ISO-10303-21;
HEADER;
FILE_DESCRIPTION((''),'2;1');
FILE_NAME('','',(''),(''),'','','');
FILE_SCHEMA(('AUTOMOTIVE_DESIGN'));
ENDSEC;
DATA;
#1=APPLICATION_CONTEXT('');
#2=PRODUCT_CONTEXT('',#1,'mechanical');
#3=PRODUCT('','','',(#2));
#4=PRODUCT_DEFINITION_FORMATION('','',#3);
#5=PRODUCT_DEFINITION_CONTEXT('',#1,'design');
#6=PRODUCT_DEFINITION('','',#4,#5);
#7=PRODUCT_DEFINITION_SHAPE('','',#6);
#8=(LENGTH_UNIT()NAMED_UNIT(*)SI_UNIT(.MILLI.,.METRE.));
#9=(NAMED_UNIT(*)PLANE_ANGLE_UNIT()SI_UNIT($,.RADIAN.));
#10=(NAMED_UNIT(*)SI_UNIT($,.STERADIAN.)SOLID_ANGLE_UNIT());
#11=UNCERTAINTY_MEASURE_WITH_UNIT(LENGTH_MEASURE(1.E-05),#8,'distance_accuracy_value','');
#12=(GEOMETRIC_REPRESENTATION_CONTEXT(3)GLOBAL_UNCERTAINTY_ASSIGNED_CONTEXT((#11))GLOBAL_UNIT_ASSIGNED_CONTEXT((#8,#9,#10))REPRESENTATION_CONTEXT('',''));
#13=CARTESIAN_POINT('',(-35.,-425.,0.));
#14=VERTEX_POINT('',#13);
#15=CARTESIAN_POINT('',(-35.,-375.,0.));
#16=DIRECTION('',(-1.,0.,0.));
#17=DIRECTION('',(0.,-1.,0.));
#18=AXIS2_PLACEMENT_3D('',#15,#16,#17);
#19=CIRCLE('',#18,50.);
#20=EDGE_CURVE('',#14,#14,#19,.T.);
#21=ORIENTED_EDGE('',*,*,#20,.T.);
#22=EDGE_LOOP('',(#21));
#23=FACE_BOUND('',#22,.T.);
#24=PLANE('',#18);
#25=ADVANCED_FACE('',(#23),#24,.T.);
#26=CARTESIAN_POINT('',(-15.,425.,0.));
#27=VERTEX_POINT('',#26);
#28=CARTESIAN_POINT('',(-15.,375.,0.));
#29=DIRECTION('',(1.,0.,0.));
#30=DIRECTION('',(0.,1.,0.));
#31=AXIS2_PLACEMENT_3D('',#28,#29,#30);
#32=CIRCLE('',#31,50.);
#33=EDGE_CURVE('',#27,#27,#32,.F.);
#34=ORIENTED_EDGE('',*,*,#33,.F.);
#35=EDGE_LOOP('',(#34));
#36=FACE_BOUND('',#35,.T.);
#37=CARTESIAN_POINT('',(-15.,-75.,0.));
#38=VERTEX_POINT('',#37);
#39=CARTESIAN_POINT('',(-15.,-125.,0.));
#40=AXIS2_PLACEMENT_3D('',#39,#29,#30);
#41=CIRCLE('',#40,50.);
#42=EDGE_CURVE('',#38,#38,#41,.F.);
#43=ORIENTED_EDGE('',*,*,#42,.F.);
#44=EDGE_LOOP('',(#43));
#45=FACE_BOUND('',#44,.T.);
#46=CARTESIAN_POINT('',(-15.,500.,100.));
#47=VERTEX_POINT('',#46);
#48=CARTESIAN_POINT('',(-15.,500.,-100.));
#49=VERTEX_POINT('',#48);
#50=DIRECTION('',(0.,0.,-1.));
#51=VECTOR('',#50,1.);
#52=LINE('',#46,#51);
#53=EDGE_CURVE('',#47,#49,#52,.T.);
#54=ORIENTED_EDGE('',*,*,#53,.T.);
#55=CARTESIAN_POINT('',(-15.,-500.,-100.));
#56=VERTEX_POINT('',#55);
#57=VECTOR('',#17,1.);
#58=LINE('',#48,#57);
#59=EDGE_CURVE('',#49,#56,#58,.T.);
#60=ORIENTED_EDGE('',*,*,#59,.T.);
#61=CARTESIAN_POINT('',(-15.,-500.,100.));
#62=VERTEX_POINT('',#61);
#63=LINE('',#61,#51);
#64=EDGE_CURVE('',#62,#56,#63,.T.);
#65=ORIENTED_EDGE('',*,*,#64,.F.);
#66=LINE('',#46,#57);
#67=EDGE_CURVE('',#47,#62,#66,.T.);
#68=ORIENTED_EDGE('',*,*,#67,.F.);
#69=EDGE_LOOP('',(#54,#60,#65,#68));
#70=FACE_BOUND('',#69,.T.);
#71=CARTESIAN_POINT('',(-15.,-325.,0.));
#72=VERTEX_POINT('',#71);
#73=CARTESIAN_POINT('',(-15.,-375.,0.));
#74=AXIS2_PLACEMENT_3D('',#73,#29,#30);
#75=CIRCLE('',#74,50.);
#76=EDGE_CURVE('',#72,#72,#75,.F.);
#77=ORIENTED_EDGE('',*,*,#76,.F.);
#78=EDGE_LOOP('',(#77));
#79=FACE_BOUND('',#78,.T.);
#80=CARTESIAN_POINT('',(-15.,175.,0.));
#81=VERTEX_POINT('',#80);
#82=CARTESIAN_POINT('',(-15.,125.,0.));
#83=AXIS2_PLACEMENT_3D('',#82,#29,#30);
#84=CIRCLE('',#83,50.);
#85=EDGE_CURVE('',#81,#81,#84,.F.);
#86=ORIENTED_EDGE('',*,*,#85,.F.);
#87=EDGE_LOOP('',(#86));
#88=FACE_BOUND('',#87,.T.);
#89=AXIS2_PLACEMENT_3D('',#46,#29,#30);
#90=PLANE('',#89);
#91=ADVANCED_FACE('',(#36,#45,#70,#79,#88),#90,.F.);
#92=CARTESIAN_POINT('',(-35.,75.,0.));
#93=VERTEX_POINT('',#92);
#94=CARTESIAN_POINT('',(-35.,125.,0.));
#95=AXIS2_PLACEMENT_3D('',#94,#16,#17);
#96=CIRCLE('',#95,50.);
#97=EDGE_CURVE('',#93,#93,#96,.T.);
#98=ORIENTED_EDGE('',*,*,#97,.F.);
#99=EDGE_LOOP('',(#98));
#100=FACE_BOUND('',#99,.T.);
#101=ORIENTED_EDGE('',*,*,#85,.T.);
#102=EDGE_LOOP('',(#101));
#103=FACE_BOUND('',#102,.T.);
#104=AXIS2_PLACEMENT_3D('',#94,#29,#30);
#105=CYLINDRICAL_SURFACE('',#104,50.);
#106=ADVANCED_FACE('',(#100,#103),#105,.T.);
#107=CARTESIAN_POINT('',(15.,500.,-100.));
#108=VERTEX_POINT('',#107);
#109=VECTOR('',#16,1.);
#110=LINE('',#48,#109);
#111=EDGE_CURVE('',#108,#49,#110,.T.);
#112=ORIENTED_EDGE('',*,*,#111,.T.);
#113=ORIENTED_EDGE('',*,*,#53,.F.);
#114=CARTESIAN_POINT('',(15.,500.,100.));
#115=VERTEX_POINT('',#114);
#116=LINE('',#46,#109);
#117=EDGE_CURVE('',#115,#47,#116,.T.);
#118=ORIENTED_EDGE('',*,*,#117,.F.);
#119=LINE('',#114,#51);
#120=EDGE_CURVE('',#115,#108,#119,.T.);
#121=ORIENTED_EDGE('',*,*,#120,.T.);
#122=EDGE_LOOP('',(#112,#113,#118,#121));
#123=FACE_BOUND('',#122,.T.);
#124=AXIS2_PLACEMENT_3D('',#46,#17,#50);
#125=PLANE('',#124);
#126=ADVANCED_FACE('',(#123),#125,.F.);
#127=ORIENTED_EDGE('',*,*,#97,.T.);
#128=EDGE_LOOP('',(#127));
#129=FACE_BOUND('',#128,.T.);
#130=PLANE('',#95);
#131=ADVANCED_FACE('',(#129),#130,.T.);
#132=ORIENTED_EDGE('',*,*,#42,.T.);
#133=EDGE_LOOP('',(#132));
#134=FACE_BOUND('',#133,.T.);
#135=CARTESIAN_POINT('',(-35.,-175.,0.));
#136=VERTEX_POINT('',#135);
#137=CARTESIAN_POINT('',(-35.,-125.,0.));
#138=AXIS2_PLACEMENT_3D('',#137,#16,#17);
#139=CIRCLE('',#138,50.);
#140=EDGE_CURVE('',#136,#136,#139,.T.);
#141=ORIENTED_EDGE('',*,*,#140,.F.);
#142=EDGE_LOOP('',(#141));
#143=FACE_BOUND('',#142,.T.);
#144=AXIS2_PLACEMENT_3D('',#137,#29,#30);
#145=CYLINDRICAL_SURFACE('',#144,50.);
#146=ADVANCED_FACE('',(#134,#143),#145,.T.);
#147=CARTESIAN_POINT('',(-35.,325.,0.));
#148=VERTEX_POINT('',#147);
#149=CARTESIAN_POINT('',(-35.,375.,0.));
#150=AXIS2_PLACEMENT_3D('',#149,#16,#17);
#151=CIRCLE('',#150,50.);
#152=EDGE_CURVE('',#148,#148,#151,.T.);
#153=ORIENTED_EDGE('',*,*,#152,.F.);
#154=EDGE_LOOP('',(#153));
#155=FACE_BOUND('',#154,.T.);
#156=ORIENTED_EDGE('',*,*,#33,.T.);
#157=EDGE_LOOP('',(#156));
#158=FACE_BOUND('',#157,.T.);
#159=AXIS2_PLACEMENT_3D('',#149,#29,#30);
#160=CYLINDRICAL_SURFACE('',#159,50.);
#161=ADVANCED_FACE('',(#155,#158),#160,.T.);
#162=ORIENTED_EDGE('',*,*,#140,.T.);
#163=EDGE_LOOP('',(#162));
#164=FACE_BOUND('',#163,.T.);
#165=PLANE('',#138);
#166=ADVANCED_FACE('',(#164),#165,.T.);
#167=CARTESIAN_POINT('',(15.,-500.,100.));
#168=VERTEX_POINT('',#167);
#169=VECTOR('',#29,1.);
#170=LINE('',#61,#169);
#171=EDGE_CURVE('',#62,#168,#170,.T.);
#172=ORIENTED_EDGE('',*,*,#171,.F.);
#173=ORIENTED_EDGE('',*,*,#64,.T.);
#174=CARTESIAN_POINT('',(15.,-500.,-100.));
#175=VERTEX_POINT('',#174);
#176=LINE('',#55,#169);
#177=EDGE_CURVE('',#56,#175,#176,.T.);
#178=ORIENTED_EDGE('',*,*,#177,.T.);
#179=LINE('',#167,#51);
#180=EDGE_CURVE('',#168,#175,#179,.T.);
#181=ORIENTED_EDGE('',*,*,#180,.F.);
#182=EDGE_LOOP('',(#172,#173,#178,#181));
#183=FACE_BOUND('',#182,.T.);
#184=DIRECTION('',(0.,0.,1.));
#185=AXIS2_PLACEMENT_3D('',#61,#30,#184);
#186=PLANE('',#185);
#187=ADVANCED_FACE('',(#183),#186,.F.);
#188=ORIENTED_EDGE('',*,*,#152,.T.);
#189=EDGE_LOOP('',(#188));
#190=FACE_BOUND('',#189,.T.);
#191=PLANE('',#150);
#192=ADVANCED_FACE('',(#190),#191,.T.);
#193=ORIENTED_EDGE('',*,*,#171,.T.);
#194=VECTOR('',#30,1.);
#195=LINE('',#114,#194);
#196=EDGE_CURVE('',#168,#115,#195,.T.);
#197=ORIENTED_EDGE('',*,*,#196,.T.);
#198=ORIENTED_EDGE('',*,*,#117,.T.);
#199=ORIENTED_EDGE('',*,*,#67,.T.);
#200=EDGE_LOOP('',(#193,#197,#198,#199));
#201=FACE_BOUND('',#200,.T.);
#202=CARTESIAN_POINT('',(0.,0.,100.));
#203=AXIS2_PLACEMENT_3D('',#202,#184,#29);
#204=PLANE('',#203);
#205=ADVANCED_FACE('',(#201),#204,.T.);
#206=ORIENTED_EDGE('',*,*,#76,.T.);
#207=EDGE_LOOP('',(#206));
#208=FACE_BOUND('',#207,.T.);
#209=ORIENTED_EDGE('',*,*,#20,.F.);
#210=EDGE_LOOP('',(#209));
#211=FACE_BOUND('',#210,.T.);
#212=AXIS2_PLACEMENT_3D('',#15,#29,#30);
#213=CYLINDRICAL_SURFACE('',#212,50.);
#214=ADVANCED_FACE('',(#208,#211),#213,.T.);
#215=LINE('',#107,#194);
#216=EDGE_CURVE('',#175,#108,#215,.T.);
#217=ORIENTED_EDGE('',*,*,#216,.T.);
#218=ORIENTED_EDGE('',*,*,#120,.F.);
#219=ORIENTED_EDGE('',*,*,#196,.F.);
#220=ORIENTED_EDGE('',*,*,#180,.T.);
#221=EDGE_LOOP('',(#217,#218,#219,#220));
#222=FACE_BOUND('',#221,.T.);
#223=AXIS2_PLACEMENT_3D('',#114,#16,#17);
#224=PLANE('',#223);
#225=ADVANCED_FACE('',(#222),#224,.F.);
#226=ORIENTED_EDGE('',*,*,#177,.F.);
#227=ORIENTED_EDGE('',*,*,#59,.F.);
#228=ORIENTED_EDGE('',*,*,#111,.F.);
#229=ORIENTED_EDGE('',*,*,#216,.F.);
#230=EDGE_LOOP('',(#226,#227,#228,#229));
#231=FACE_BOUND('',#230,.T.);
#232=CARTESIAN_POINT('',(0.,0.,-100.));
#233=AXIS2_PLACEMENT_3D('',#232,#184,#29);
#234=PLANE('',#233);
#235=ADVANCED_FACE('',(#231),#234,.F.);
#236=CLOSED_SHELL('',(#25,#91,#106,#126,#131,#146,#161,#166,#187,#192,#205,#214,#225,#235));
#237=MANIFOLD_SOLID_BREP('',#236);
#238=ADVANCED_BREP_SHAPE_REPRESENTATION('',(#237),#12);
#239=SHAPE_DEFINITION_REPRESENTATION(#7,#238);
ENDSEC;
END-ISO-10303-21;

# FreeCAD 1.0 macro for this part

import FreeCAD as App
import Part
import Sketcher


def add_polygon(sketch, points):
    """Adds a closed chain of lines whose ends are joined by coincident constraints."""
    first, n = sketch.GeometryCount, len(points)
    for a, b in zip(points, points[1:] + points[:1]):
        sketch.addGeometry(Part.LineSegment(App.Vector(*a, 0), App.Vector(*b, 0)), False)
    for i in range(n):
        sketch.addConstraint(Sketcher.Constraint("Coincident", first + i, 2, first + (i + 1) % n, 1))

doc = App.newDocument("Part")
params = doc.addObject("Spreadsheet::Sheet", "Params")
for row, (alias, value) in enumerate([
    ("sketch1_width", "30 mm"),
    ("sketch1_height", "1000 mm"),
    ("pad1_length", "200 mm"),
    ("sketch2_diameter", "100 mm"),
    ("pad2_length", "20 mm"),
    ("linearpattern_pitch", "250 mm"),
], start=1):
    params.set(f"A{row}", alias)
    params.set(f"B{row}", "=" + value)
    params.setAlias(f"B{row}", alias)

body = doc.addObject("PartDesign::Body", "Body")

# Sketch on XY plane
sketch1 = body.newObject("Sketcher::SketchObject", "Sketch")
sketch1.AttachmentSupport = (doc.getObject("XY_Plane"), [""])
sketch1.MapMode = "FlatFace"
add_polygon(sketch1, [(-15, 500), (-15, -500), (15, -500), (15, 500)])  # lines 0-3
sketch1.addConstraint([
    Sketcher.Constraint("Vertical", 0),
    Sketcher.Constraint("Horizontal", 1),
    Sketcher.Constraint("Vertical", 2),
    Sketcher.Constraint("Horizontal", 3),
    Sketcher.Constraint("Symmetric", 0, 2, 2, 2, -1, 1),
    Sketcher.Constraint("DistanceX", 1, 1, 1, 2, 30.0),
    Sketcher.Constraint("DistanceY", 0, 2, 0, 1, 1000.0),
])
sketch1.setExpression("Constraints[9]", "Params.sketch1_width")
sketch1.setExpression("Constraints[10]", "Params.sketch1_height")
pad1 = body.newObject("PartDesign::Pad", "Pad")
pad1.Profile = sketch1
pad1.setExpression("Length", "Params.pad1_length")
pad1.Midplane = True

# Sketch on YZ plane
sketch2 = body.newObject("Sketcher::SketchObject", "Sketch001")
sketch2.AttachmentSupport = (doc.getObject("YZ_Plane"), [""])
sketch2.MapMode = "FlatFace"
sketch2.AttachmentOffset = App.Placement(App.Vector(0, 0, -15), App.Rotation())
sketch2.addGeometry(Part.Circle(App.Vector(375, 0, 0), App.Vector(0, 0, 1), 50), False)
sketch2.addConstraint([
    Sketcher.Constraint("PointOnObject", 0, 3, -1),
    Sketcher.Constraint("Diameter", 0, 100.0),
    Sketcher.Constraint("DistanceX", -1, 1, 0, 3, 375.0),
])
sketch2.setExpression("Constraints[1]", "Params.sketch2_diameter")
pad2 = body.newObject("PartDesign::Pad", "Pad001")
pad2.Profile = sketch2
pad2.setExpression("Length", "Params.pad2_length")
pad2.Reversed = True
doc.recompute()

linearpattern = body.newObject("PartDesign::LinearPattern", "LinearPattern")
linearpattern.Originals = [pad2]
linearpattern.Direction = (doc.getObject("Y_Axis"), [""])
linearpattern.Mode = "offset"
linearpattern.setExpression("Offset", "Params.linearpattern_pitch")
linearpattern.Occurrences = 4
linearpattern.Reversed = True
body.Tip = linearpattern

doc.recompute()
